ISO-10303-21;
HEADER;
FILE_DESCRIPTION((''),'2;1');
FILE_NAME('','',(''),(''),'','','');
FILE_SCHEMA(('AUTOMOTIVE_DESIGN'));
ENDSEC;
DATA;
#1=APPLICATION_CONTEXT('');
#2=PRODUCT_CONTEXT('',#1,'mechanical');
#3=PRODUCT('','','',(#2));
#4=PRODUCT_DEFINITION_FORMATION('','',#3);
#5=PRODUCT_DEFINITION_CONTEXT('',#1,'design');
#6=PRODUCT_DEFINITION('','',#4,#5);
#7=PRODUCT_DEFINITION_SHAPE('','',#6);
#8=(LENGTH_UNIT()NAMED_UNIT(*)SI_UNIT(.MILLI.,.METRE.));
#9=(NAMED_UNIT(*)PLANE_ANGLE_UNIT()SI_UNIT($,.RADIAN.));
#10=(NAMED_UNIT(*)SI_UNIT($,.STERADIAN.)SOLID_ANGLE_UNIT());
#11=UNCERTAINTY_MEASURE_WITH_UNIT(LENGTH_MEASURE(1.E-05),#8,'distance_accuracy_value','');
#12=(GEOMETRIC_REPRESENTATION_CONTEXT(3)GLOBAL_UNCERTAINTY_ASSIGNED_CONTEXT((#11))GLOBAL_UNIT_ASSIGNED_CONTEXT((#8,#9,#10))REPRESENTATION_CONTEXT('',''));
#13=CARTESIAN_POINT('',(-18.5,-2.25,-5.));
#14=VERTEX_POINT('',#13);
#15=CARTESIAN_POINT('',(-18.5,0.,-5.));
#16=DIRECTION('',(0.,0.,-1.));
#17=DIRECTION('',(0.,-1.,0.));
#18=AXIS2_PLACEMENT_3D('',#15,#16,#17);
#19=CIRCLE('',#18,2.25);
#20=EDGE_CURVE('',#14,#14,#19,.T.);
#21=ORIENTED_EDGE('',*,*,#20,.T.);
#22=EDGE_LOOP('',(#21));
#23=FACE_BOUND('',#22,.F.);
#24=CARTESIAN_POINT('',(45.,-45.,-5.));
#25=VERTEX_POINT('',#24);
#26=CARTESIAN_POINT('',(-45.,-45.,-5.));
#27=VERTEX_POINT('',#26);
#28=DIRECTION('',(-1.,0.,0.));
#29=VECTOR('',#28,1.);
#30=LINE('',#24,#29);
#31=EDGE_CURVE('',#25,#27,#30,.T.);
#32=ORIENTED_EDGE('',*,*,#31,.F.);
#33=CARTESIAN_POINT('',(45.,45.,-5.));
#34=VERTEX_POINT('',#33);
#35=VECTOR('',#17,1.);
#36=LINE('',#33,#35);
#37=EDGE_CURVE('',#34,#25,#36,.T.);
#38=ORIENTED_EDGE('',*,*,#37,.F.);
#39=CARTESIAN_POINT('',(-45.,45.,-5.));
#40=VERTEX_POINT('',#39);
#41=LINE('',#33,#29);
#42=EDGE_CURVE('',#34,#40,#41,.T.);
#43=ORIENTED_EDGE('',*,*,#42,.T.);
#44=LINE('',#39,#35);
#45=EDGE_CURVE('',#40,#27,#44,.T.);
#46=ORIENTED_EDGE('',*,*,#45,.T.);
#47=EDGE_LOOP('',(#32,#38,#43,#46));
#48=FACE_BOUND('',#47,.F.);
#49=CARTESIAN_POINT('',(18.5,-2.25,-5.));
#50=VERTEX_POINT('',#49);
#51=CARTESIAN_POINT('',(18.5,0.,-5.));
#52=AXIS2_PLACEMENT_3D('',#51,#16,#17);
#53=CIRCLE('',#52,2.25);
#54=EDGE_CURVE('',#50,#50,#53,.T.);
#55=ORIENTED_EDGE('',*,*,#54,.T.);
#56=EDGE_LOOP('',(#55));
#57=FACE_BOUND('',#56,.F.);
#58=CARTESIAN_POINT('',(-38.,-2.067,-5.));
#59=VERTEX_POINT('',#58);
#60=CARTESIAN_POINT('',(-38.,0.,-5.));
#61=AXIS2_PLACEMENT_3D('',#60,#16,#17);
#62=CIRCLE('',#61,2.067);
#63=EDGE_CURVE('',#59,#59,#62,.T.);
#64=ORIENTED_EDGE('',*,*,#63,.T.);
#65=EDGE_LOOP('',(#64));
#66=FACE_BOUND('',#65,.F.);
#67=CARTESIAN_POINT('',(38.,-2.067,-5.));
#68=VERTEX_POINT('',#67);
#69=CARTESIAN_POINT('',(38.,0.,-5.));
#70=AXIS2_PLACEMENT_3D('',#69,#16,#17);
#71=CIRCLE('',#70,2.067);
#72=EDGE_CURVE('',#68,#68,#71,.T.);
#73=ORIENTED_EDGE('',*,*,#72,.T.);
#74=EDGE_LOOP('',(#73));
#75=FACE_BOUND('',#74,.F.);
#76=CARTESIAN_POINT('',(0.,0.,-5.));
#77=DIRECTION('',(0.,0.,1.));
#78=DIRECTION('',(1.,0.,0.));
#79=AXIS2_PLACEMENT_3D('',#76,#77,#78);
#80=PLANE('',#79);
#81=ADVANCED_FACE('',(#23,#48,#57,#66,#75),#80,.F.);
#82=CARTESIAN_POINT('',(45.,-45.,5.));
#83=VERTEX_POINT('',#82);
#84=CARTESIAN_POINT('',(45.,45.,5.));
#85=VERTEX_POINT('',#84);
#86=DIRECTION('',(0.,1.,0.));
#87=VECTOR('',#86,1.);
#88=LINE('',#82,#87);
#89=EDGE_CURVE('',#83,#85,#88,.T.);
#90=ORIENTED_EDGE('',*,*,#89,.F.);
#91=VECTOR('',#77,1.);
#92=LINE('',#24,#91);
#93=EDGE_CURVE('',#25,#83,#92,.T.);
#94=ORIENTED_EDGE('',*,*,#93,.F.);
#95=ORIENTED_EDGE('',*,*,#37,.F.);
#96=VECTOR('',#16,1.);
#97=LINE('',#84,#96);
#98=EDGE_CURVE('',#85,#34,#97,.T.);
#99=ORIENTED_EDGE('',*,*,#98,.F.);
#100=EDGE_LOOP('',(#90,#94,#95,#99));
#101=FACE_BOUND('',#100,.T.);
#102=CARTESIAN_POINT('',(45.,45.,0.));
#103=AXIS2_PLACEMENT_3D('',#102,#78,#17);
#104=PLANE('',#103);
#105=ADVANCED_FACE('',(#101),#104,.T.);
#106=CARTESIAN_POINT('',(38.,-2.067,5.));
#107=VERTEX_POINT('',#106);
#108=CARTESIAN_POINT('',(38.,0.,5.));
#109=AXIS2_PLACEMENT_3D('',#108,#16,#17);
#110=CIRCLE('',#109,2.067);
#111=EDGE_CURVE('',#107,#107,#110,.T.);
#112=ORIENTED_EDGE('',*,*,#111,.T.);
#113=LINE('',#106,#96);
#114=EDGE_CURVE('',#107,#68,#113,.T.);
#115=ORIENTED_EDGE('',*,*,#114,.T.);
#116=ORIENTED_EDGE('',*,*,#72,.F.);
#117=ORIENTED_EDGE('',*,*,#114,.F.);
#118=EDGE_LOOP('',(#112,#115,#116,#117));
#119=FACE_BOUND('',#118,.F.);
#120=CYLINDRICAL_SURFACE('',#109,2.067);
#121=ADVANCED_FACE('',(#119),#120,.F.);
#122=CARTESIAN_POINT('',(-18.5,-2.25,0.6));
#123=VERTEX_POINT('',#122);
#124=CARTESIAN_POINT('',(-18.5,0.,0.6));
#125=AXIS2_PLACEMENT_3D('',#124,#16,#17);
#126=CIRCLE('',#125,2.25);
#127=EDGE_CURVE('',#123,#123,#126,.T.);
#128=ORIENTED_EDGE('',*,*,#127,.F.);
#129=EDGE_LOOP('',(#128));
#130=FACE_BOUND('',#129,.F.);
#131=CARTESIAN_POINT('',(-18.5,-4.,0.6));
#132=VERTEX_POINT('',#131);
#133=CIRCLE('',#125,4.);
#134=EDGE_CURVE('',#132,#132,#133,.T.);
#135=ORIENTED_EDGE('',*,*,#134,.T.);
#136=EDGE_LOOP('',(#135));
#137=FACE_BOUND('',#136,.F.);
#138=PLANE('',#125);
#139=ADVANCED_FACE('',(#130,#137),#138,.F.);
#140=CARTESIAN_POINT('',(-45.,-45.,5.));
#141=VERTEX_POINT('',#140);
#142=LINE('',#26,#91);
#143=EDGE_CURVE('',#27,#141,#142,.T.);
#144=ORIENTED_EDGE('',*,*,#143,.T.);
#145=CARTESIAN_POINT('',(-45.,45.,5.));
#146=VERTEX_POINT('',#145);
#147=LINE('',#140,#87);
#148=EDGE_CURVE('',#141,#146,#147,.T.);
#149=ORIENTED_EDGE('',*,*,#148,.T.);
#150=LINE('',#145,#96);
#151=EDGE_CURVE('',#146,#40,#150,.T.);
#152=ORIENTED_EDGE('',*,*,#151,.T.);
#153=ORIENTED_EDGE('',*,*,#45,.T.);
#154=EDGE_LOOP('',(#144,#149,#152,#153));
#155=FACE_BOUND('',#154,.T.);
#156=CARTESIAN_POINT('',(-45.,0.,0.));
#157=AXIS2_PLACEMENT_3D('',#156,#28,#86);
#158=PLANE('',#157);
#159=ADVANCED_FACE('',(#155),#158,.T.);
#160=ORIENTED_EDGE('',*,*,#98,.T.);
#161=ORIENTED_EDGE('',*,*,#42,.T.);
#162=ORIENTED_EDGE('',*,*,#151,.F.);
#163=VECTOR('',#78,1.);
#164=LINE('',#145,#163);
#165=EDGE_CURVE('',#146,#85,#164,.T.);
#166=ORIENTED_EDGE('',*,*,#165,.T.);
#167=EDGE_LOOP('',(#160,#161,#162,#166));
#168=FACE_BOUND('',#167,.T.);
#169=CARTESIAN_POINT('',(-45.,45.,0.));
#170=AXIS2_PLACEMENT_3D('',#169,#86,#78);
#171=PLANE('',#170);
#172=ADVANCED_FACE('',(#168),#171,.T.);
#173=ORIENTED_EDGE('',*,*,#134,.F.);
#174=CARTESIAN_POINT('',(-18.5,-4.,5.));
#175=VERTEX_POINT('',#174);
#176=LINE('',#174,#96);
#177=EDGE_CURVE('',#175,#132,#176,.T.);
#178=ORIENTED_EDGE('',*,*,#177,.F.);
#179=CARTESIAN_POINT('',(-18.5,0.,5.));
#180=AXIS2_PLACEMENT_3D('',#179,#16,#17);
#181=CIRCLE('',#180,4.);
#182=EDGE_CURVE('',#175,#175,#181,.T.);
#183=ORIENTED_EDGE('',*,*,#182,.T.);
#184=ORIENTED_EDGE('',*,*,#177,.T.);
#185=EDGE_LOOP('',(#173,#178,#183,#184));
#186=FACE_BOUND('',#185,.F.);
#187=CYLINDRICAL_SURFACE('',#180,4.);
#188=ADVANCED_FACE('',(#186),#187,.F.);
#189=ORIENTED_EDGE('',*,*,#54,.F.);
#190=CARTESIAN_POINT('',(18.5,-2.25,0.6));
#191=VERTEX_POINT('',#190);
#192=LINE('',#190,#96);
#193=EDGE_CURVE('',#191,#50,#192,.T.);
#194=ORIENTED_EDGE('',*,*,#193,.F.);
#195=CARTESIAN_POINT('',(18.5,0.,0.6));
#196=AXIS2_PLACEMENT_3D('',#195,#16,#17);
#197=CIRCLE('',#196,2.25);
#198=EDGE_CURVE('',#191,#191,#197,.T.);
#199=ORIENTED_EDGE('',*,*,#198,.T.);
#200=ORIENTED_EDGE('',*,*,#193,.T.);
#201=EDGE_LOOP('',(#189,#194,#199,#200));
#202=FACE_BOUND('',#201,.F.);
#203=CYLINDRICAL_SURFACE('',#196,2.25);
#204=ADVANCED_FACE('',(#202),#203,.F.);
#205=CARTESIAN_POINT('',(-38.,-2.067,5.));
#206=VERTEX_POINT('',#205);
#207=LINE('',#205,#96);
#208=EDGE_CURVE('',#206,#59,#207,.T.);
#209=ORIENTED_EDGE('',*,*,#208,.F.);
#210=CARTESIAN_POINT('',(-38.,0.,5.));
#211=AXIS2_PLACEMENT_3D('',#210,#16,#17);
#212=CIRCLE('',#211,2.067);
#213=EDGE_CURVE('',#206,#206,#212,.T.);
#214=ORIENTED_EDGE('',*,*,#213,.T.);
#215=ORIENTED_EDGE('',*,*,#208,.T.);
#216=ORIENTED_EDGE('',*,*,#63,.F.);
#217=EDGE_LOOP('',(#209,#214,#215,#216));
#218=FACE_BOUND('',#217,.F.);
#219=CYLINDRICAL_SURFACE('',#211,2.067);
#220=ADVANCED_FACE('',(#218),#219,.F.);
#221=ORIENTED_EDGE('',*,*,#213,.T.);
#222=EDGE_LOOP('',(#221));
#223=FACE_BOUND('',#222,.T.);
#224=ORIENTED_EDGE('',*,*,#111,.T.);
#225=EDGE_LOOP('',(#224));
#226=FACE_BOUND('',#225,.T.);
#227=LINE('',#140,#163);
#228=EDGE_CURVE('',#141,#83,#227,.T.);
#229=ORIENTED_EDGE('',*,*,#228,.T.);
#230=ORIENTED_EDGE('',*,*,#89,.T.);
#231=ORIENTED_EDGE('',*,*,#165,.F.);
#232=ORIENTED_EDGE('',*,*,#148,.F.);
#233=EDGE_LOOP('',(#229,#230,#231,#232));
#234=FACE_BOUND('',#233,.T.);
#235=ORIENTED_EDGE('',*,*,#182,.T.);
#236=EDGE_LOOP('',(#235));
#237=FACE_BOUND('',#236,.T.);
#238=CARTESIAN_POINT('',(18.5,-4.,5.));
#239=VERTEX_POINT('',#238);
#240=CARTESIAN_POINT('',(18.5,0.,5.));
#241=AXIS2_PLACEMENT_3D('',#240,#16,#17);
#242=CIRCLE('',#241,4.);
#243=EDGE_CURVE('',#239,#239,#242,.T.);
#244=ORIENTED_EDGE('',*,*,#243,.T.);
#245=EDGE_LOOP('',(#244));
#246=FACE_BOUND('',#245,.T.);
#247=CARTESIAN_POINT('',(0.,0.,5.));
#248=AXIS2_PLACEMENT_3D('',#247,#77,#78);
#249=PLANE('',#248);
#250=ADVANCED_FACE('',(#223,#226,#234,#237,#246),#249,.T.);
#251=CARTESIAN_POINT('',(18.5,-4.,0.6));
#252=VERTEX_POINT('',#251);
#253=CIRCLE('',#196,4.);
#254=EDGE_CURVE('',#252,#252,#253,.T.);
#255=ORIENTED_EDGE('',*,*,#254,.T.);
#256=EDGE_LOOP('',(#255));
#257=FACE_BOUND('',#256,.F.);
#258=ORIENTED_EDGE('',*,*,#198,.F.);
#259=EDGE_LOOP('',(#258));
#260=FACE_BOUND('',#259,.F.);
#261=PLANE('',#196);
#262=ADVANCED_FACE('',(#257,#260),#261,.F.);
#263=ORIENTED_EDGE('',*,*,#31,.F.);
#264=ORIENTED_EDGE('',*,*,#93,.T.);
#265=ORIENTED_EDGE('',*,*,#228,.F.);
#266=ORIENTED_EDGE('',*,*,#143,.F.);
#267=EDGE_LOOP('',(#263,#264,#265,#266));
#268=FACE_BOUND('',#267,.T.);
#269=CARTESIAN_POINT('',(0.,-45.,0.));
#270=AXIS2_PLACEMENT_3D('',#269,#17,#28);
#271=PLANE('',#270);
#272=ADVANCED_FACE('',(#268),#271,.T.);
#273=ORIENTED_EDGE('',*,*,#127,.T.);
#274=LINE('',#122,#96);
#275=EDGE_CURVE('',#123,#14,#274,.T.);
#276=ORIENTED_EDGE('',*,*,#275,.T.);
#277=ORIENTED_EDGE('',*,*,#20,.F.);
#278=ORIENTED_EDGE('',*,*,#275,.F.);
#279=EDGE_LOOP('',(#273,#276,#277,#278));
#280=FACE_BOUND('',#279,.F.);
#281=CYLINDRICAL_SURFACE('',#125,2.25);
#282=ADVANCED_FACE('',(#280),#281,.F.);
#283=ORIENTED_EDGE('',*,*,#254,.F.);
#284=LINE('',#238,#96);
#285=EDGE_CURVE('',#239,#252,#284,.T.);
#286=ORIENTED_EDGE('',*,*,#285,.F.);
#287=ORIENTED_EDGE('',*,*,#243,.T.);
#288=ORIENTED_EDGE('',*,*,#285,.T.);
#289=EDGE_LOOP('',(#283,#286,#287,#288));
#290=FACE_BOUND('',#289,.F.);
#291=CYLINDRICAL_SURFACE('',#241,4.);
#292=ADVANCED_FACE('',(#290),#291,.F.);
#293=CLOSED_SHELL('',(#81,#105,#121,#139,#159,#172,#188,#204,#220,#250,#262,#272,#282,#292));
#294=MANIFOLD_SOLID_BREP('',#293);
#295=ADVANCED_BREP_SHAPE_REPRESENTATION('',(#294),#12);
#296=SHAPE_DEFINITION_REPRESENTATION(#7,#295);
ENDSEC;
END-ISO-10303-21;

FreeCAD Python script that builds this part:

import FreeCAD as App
import Part
import Sketcher
Q = App.Units.Quantity


def add_polygon(sketch, points):
    """Adds a closed chain of lines whose ends are joined by coincident constraints."""
    first, n = sketch.GeometryCount, len(points)
    for a, b in zip(points, points[1:] + points[:1]):
        sketch.addGeometry(Part.LineSegment(App.Vector(*a, 0), App.Vector(*b, 0)), False)
    for i in range(n):
        sketch.addConstraint(Sketcher.Constraint("Coincident", first + i, 2, first + (i + 1) % n, 1))

doc = App.newDocument("Part")
body = doc.addObject("PartDesign::Body", "Body")

# Sketch on XY plane
sketch1 = doc.addObject("Sketcher::SketchObject", "Sketch")
body.addObject(sketch1)
sketch1.AttachmentSupport = (doc.XY_Plane, [""])
sketch1.MapMode = "FlatFace"
add_polygon(sketch1, [(-45, 45), (-45, -45), (45, -45), (45, 45)])  # lines 0-3
sketch1.addConstraint(Sketcher.Constraint("Vertical", 0))
sketch1.addConstraint(Sketcher.Constraint("Horizontal", 1))
sketch1.addConstraint(Sketcher.Constraint("Vertical", 2))
sketch1.addConstraint(Sketcher.Constraint("Horizontal", 3))
sketch1.addConstraint(Sketcher.Constraint("Symmetric", 0, 2, 2, 2, -1, 1))
sketch1.addConstraint(Sketcher.Constraint("Equal", 3, 0))
sketch1.addConstraint(Sketcher.Constraint("DistanceX", 1, 1, 1, 2, Q("90 mm")))
pad1 = doc.addObject("PartDesign::Pad", "Pad")
body.addObject(pad1)
pad1.Profile = sketch1
pad1.Length = 10
pad1.Midplane = True

# Sketch on XY plane
sketch2 = doc.addObject("Sketcher::SketchObject", "Sketch001")
body.addObject(sketch2)
sketch2.AttachmentSupport = (doc.XY_Plane, [""])
sketch2.MapMode = "FlatFace"
sketch2.AttachmentOffset = App.Placement(App.Vector(0, 0, 5), App.Rotation())
sketch2.addGeometry(Part.Circle(App.Vector(-18.5, 0, 0), App.Vector(0, 0, 1), 2.2), False)
sketch2.addGeometry(Part.Circle(App.Vector(18.5, 0, 0), App.Vector(0, 0, 1), 2.2), False)
sketch2.addConstraint(Sketcher.Constraint("Equal", 0, 1))
sketch2.addConstraint(Sketcher.Constraint("Symmetric", 0, 3, 1, 3, -1, 1))
sketch2.addConstraint(Sketcher.Constraint("PointOnObject", 0, 3, -1))
sketch2.addConstraint(Sketcher.Constraint("Diameter", 0, Q("4.5 mm")))
sketch2.addConstraint(Sketcher.Constraint("DistanceX", 0, 3, 1, 3, Q("37 mm")))
doc.recompute()
hole = doc.addObject("PartDesign::Hole", "Hole")
body.addObject(hole)
hole.Profile = sketch2
hole.ThreadType = "None"
hole.Diameter = 4.5
hole.DepthType = "ThroughAll"
hole.HoleCutType = "Counterbore"
hole.HoleCutDiameter = 8
hole.HoleCutDepth = 4.4

# Sketch on XY plane
sketch3 = doc.addObject("Sketcher::SketchObject", "Sketch002")
body.addObject(sketch3)
sketch3.AttachmentSupport = (doc.XY_Plane, [""])
sketch3.MapMode = "FlatFace"
sketch3.AttachmentOffset = App.Placement(App.Vector(0, 0, 5), App.Rotation())
sketch3.addGeometry(Part.Circle(App.Vector(-38, 0, 0), App.Vector(0, 0, 1), 2.1), False)
sketch3.addGeometry(Part.Circle(App.Vector(38, 0, 0), App.Vector(0, 0, 1), 2.1), False)
sketch3.addConstraint(Sketcher.Constraint("Equal", 0, 1))
sketch3.addConstraint(Sketcher.Constraint("Symmetric", 0, 3, 1, 3, -1, 1))
sketch3.addConstraint(Sketcher.Constraint("PointOnObject", 0, 3, -1))
sketch3.addConstraint(Sketcher.Constraint("Diameter", 0, Q("4.134 mm")))
sketch3.addConstraint(Sketcher.Constraint("DistanceX", 0, 3, -1, 1, Q("38 mm")))
doc.recompute()
hole2 = doc.addObject("PartDesign::Hole", "Hole001")
body.addObject(hole2)
hole2.Profile = sketch3
hole2.ThreadType = "None"
hole2.Diameter = 4.134
hole2.DepthType = "ThroughAll"

doc.recompute()
